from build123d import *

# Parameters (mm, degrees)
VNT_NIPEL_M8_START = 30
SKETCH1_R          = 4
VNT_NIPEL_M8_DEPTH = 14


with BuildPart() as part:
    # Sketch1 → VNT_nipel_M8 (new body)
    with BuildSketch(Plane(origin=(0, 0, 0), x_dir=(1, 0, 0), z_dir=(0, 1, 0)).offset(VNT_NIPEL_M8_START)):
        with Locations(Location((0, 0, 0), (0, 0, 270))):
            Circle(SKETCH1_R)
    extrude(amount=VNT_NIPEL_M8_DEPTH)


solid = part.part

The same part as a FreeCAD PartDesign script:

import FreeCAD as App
import Part
import Sketcher
Q = App.Units.Quantity

doc = App.newDocument("Part")
params = doc.addObject("Spreadsheet::Sheet", "Params")
for row, (alias, value) in enumerate([
    ("sketch1_diameter", "8 mm"),
    ("pad1_length", "14 mm"),
], start=1):
    params.set(f"A{row}", alias)
    params.set(f"B{row}", "=" + value)
    params.setAlias(f"B{row}", alias)

body = doc.addObject("PartDesign::Body", "Body")

# Sketch on XZ plane
sketch1 = body.newObject("Sketcher::SketchObject", "Sketch")
sketch1.AttachmentSupport = (doc.getObject("XZ_Plane"), [""])
sketch1.MapMode = "FlatFace"
sketch1.AttachmentOffset = App.Placement(App.Vector(0, 0, -30), App.Rotation())
sketch1.addGeometry(Part.Circle(App.Vector(0, 0, 0), App.Vector(0, 0, 1), 4), False)
sketch1.addConstraint(Sketcher.Constraint("Coincident", 0, 3, -1, 1))
sketch1.addConstraint(Sketcher.Constraint("Diameter", 0, Q("8 mm")))
sketch1.setExpression("Constraints[1]", "Params.sketch1_diameter")
pad1 = body.newObject("PartDesign::Pad", "Pad")
pad1.Profile = sketch1
pad1.setExpression("Length", "Params.pad1_length")
pad1.Reversed = True

doc.recompute()
